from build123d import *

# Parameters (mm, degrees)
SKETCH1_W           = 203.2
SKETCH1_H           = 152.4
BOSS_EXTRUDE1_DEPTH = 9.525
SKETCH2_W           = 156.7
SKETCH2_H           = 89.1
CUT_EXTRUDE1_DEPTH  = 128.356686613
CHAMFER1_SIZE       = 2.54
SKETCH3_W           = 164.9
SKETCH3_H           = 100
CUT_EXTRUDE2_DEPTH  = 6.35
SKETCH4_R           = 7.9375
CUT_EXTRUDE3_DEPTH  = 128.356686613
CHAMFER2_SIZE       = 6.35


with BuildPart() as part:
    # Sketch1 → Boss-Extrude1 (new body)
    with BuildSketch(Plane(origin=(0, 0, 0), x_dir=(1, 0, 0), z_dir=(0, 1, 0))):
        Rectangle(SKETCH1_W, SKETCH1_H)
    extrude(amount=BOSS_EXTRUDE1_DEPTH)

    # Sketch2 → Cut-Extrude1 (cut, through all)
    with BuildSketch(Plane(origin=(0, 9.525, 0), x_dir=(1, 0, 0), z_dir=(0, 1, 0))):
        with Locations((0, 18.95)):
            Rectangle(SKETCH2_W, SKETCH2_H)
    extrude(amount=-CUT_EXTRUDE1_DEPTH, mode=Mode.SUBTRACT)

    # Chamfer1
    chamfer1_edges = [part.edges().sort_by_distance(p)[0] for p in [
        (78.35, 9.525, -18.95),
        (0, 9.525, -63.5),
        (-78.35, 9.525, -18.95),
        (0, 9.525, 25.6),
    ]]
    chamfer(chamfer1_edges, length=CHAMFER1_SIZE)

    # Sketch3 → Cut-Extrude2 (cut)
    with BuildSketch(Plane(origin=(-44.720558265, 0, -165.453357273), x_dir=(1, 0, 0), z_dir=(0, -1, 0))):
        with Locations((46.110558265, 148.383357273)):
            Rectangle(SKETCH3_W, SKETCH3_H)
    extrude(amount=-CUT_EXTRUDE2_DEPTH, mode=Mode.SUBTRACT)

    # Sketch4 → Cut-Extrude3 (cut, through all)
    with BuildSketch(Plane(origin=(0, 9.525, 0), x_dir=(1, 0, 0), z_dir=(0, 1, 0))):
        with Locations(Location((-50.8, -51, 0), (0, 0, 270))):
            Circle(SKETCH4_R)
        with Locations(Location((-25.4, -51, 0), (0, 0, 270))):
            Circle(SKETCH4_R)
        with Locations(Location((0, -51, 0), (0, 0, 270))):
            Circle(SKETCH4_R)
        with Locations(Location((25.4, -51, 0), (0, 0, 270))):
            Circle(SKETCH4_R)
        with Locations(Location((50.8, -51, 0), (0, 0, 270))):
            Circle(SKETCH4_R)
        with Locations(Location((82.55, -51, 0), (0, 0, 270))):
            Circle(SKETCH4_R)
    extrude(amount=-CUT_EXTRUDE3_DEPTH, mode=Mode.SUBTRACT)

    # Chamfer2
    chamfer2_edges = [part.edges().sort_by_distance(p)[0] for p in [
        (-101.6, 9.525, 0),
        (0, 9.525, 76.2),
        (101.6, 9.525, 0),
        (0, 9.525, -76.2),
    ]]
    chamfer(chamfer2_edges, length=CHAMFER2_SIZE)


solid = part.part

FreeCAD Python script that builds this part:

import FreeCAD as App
import Part
import Sketcher
Q = App.Units.Quantity


def edges_at(feature, points):
    """Names of the edges that pass closest to the given points."""
    edges = feature.Shape.Edges
    near = lambda p: min(range(len(edges)), key=lambda i: edges[i].distToShape(Part.Vertex(*p))[0])
    return sorted({f"Edge{near(p) + 1}" for p in points})

doc = App.newDocument("Part")
body = doc.addObject("PartDesign::Body", "Body")

# Sketch on XZ plane
sketch1 = doc.addObject("Sketcher::SketchObject", "Sketch")
body.addObject(sketch1)
sketch1.AttachmentSupport = (doc.XZ_Plane, [""])
sketch1.MapMode = "FlatFace"
sketch1.addGeometry(Part.LineSegment(App.Vector(-102, -76, 0), App.Vector(-102, 76, 0)), False)
sketch1.addGeometry(Part.LineSegment(App.Vector(-102, 76, 0), App.Vector(102, 76, 0)), False)
sketch1.addGeometry(Part.LineSegment(App.Vector(102, 76, 0), App.Vector(102, -76, 0)), False)
sketch1.addGeometry(Part.LineSegment(App.Vector(102, -76, 0), App.Vector(-102, -76, 0)), False)
sketch1.addConstraint(Sketcher.Constraint("Coincident", 0, 2, 1, 1))
sketch1.addConstraint(Sketcher.Constraint("Coincident", 1, 2, 2, 1))
sketch1.addConstraint(Sketcher.Constraint("Coincident", 2, 2, 3, 1))
sketch1.addConstraint(Sketcher.Constraint("Coincident", 3, 2, 0, 1))
sketch1.addConstraint(Sketcher.Constraint("Vertical", 0))
sketch1.addConstraint(Sketcher.Constraint("Horizontal", 1))
sketch1.addConstraint(Sketcher.Constraint("Vertical", 2))
sketch1.addConstraint(Sketcher.Constraint("Horizontal", 3))
sketch1.addConstraint(Sketcher.Constraint("Symmetric", 0, 2, 2, 2, -1, 1))
sketch1.addConstraint(Sketcher.Constraint("DistanceX", 1, 1, 1, 2, Q("8 in")))
sketch1.addConstraint(Sketcher.Constraint("DistanceY", 0, 1, 0, 2, Q("6 in")))
pad1 = doc.addObject("PartDesign::Pad", "Pad")
body.addObject(pad1)
pad1.Profile = sketch1
pad1.Length = Q("0.375 in")
pad1.Reversed = True

# Sketch on XZ plane
sketch2 = doc.addObject("Sketcher::SketchObject", "Sketch001")
body.addObject(sketch2)
sketch2.AttachmentSupport = (doc.XZ_Plane, [""])
sketch2.MapMode = "FlatFace"
sketch2.AttachmentOffset = App.Placement(App.Vector(0, 0, -0.375 * 25.4), App.Rotation())
sketch2.addGeometry(Part.LineSegment(App.Vector(-78, -64, 0), App.Vector(-78, 26, 0)), False)
sketch2.addGeometry(Part.LineSegment(App.Vector(-78, 26, 0), App.Vector(78, 26, 0)), False)
sketch2.addGeometry(Part.LineSegment(App.Vector(78, 26, 0), App.Vector(78, -64, 0)), False)
sketch2.addGeometry(Part.LineSegment(App.Vector(78, -64, 0), App.Vector(-78, -64, 0)), False)
sketch2.addConstraint(Sketcher.Constraint("Coincident", 0, 2, 1, 1))
sketch2.addConstraint(Sketcher.Constraint("Coincident", 1, 2, 2, 1))
sketch2.addConstraint(Sketcher.Constraint("Coincident", 2, 2, 3, 1))
sketch2.addConstraint(Sketcher.Constraint("Coincident", 3, 2, 0, 1))
sketch2.addConstraint(Sketcher.Constraint("Vertical", 0))
sketch2.addConstraint(Sketcher.Constraint("Horizontal", 1))
sketch2.addConstraint(Sketcher.Constraint("Vertical", 2))
sketch2.addConstraint(Sketcher.Constraint("Horizontal", 3))
sketch2.addConstraint(Sketcher.Constraint("DistanceY", 2, 2, -1, 1, Q("2.5 in")))
sketch2.addConstraint(Sketcher.Constraint("DistanceX", 1, 1, 1, 2, 156.7))
sketch2.addConstraint(Sketcher.Constraint("DistanceY", 0, 1, 0, 2, 89.1))
sketch2.addConstraint(Sketcher.Constraint("DistanceX", 0, 2, -1, 1, 78.35))
pocket1 = doc.addObject("PartDesign::Pocket", "Pocket")
body.addObject(pocket1)
pocket1.Profile = sketch2
pocket1.Type = "ThroughAll"
pocket1.Reversed = True
doc.recompute()

chamfer = doc.addObject("PartDesign::Chamfer", "Chamfer")
body.addObject(chamfer)
chamfer.Base = (pocket1, edges_at(pocket1, [
    (78.35, 9.525, -18.95),
    (0, 9.525, -63.5),
    (-78.35, 9.525, -18.95),
    (0, 9.525, 25.6),
]))
chamfer.Size = Q("0.1 in")

# Sketch on XZ plane
sketch3 = doc.addObject("Sketcher::SketchObject", "Sketch002")
body.addObject(sketch3)
sketch3.AttachmentSupport = (doc.XZ_Plane, [""])
sketch3.MapMode = "FlatFace"
sketch3.addGeometry(Part.LineSegment(App.Vector(-81, 33, 0), App.Vector(-81, -67, 0)), False)
sketch3.addGeometry(Part.LineSegment(App.Vector(-81, -67, 0), App.Vector(84, -67, 0)), False)
sketch3.addGeometry(Part.LineSegment(App.Vector(84, -67, 0), App.Vector(84, 33, 0)), False)
sketch3.addGeometry(Part.LineSegment(App.Vector(84, 33, 0), App.Vector(-81, 33, 0)), False)
sketch3.addConstraint(Sketcher.Constraint("Coincident", 0, 2, 1, 1))
sketch3.addConstraint(Sketcher.Constraint("Coincident", 1, 2, 2, 1))
sketch3.addConstraint(Sketcher.Constraint("Coincident", 2, 2, 3, 1))
sketch3.addConstraint(Sketcher.Constraint("Coincident", 3, 2, 0, 1))
sketch3.addConstraint(Sketcher.Constraint("Vertical", 0))
sketch3.addConstraint(Sketcher.Constraint("Horizontal", 1))
sketch3.addConstraint(Sketcher.Constraint("Vertical", 2))
sketch3.addConstraint(Sketcher.Constraint("Horizontal", 3))
sketch3.addConstraint(Sketcher.Constraint("DistanceX", 1, 1, 1, 2, 164.9))
sketch3.addConstraint(Sketcher.Constraint("DistanceY", 0, 2, 0, 1, 100.0))
sketch3.addConstraint(Sketcher.Constraint("DistanceX", 0, 2, -1, 1, 81.06))
sketch3.addConstraint(Sketcher.Constraint("DistanceY", 0, 2, -1, 1, 67.07))
pocket2 = doc.addObject("PartDesign::Pocket", "Pocket001")
body.addObject(pocket2)
pocket2.Profile = sketch3
pocket2.Length = Q("0.25 in")

# Sketch on XZ plane
sketch4 = doc.addObject("Sketcher::SketchObject", "Sketch003")
body.addObject(sketch4)
sketch4.AttachmentSupport = (doc.XZ_Plane, [""])
sketch4.MapMode = "FlatFace"
sketch4.AttachmentOffset = App.Placement(App.Vector(0, 0, -0.375 * 25.4), App.Rotation())
sketch4.addGeometry(Part.Circle(App.Vector(-51, 51, 0), App.Vector(0, 0, 1), 8), False)
sketch4.addGeometry(Part.Circle(App.Vector(-25, 51, 0), App.Vector(0, 0, 1), 8), False)
sketch4.addGeometry(Part.Circle(App.Vector(0, 51, 0), App.Vector(0, 0, 1), 8), False)
sketch4.addGeometry(Part.Circle(App.Vector(25, 51, 0), App.Vector(0, 0, 1), 8), False)
sketch4.addGeometry(Part.Circle(App.Vector(51, 51, 0), App.Vector(0, 0, 1), 8), False)
sketch4.addGeometry(Part.Circle(App.Vector(83, 51, 0), App.Vector(0, 0, 1), 8), False)
sketch4.addConstraint(Sketcher.Constraint("Equal", 0, 1))
sketch4.addConstraint(Sketcher.Constraint("Equal", 1, 2))
sketch4.addConstraint(Sketcher.Constraint("Equal", 2, 3))
sketch4.addConstraint(Sketcher.Constraint("Equal", 3, 4))
sketch4.addConstraint(Sketcher.Constraint("Equal", 4, 5))
sketch4.addConstraint(Sketcher.Constraint("Symmetric", 1, 3, 3, 3, -2))
sketch4.addConstraint(Sketcher.Constraint("Symmetric", 0, 3, 4, 3, -2))
sketch4.addConstraint(Sketcher.Constraint("PointOnObject", 2, 3, -2))
sketch4.addConstraint(Sketcher.Constraint("Horizontal", 0, 3, 1, 3))
sketch4.addConstraint(Sketcher.Constraint("Horizontal", 1, 3, 2, 3))
sketch4.addConstraint(Sketcher.Constraint("Horizontal", 4, 3, 5, 3))
sketch4.addConstraint(Sketcher.Constraint("Diameter", 0, Q("0.625 in")))
sketch4.addConstraint(Sketcher.Constraint("DistanceX", 0, 3, -1, 1, Q("2 in")))
sketch4.addConstraint(Sketcher.Constraint("DistanceX", 1, 3, -1, 1, Q("1 in")))
sketch4.addConstraint(Sketcher.Constraint("DistanceX", -1, 1, 5, 3, Q("3.25 in")))
sketch4.addConstraint(Sketcher.Constraint("DistanceY", -1, 1, 0, 3, 51.0))
pocket3 = doc.addObject("PartDesign::Pocket", "Pocket002")
body.addObject(pocket3)
pocket3.Profile = sketch4
pocket3.Type = "ThroughAll"
pocket3.Reversed = True
doc.recompute()

chamfer2 = doc.addObject("PartDesign::Chamfer", "Chamfer001")
body.addObject(chamfer2)
chamfer2.Base = (pocket3, edges_at(pocket3, [
    (-101.6, 9.525, 0),
    (0, 9.525, 76.2),
    (101.6, 9.525, 0),
    (0, 9.525, -76.2),
]))
chamfer2.Size = Q("0.25 in")

doc.recompute()
